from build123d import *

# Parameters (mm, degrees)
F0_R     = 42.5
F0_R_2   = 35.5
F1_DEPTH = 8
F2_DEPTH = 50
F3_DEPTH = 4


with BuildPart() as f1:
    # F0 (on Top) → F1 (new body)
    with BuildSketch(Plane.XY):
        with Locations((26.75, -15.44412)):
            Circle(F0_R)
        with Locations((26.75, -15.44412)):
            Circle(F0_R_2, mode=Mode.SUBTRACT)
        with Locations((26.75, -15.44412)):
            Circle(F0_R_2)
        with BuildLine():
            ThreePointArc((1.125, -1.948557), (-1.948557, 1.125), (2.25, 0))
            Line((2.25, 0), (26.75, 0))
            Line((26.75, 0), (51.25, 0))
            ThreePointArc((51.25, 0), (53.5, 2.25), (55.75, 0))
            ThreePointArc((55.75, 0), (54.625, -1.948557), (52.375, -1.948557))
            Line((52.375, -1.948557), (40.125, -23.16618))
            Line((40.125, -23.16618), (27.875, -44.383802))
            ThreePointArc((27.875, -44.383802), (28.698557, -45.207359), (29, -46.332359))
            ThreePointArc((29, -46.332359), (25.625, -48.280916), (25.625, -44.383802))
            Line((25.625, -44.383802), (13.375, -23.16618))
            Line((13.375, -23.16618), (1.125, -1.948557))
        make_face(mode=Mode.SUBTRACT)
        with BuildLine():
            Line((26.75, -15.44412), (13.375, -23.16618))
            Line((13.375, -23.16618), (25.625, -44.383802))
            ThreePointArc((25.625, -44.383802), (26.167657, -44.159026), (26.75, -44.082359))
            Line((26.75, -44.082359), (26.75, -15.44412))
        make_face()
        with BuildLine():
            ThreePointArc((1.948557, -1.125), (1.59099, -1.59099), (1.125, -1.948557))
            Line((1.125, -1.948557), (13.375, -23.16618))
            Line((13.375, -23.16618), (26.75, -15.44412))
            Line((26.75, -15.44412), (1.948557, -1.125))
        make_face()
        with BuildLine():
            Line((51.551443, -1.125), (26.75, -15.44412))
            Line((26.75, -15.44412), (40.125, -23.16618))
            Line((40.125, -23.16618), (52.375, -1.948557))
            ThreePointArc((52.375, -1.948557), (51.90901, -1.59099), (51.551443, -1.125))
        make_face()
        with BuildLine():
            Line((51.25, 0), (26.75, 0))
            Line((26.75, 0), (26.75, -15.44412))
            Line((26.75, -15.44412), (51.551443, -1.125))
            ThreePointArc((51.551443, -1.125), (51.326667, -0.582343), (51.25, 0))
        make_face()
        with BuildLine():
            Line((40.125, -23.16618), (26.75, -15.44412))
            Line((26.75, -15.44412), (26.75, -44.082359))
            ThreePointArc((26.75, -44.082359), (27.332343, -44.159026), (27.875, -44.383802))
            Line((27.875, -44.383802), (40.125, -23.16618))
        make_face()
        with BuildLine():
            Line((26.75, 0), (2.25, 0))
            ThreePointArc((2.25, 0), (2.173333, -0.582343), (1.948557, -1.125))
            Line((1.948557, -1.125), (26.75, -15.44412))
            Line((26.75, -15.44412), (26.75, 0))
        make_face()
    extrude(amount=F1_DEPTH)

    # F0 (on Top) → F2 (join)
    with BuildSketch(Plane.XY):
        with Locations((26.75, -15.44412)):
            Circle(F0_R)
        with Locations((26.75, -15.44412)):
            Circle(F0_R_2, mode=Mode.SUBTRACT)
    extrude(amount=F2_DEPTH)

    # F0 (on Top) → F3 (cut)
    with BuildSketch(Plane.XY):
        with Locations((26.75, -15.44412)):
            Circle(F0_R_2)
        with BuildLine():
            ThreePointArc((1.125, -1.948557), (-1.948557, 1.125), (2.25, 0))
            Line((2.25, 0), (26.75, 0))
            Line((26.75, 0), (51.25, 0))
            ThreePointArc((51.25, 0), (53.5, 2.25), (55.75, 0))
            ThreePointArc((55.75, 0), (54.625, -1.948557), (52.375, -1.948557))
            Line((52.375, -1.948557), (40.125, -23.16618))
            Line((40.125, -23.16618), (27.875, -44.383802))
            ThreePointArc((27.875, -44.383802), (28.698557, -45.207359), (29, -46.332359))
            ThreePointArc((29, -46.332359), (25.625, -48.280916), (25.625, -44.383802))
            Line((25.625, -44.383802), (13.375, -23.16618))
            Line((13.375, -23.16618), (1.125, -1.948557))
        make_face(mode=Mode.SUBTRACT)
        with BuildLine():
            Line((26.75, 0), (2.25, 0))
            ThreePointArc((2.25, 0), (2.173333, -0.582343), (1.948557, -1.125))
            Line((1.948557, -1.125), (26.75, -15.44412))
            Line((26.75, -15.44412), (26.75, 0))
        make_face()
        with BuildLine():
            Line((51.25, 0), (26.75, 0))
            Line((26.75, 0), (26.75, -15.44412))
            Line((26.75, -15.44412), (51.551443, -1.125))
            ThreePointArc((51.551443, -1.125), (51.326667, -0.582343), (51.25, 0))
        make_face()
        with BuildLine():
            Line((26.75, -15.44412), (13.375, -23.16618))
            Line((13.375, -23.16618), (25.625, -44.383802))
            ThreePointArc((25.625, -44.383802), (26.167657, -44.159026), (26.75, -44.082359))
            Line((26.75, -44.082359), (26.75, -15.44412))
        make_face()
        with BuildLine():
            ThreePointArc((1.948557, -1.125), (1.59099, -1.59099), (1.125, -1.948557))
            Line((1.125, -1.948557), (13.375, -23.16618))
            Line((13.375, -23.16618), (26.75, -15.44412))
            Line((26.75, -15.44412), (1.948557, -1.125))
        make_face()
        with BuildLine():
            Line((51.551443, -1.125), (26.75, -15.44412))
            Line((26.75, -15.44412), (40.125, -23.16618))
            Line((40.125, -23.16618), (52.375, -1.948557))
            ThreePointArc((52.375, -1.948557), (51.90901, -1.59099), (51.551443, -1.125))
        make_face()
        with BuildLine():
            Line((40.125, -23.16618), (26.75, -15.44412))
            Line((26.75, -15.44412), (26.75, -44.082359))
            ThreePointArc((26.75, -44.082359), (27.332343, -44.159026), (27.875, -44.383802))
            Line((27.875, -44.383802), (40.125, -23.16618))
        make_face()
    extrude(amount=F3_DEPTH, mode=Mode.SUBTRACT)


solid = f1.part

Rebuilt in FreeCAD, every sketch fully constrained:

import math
import FreeCAD as App
import Part
import Sketcher

V = App.Vector

doc = App.newDocument("Part")
body = doc.addObject("PartDesign::Body", "Body")

sketch1 = body.newObject("Sketcher::SketchObject", "Sketch")
sketch1.AttachmentSupport = (doc.getObject("XY_Plane"), [""])
sketch1.MapMode = "FlatFace"
sketch1.addGeometry([
    Part.Circle(V(26.8, -15.4, 0), V(0, 0, 1), 42.5),
    Part.ArcOfCircle(Part.Circle(V(26.8, -46.3, 0), V(0, 0, 1), 2.2), math.radians(90), math.radians(120)),
    Part.ArcOfCircle(Part.Circle(V(26.7, -46.3, 0), V(0, 0, 1), 2.2), math.radians(60), math.radians(90)),
    Part.ArcOfCircle(Part.Circle(V(26.7, -46.3, 0), V(0, 0, 1), 2.3), math.radians(0), math.radians(60)),
    Part.ArcOfCircle(Part.Circle(V(26.8, -46.3, 0), V(0, 0, 1), 2.2), math.radians(120), math.radians(360)),
    Part.ArcOfCircle(Part.Circle(V(0, 0, 0), V(0, 0, 1), 2.3), math.radians(-60), math.radians(-30)),
    Part.ArcOfCircle(Part.Circle(V(0, 0, 0), V(0, 0, 1), 2.2), math.radians(0), math.radians(300)),
    Part.ArcOfCircle(Part.Circle(V(0, 0, 0), V(0, 0, 1), 2.2), math.radians(-30), math.radians(0)),
    Part.ArcOfCircle(Part.Circle(V(53.5, 0, 0), V(0, 0, 1), 2.3), math.radians(-150), math.radians(-120)),
    Part.ArcOfCircle(Part.Circle(V(53.5, 0, 0), V(0, 0, 1), 2.2), math.radians(-180), math.radians(-150)),
    Part.ArcOfCircle(Part.Circle(V(53.5, 0, 0), V(0, 0, 1), 2.2), math.radians(0), math.radians(180)),
    Part.ArcOfCircle(Part.Circle(V(53.5, 0, 0), V(0, 0, 1), 2.2), math.radians(-120), math.radians(0)),
], False)
sketch1.addConstraint([
    Sketcher.Constraint("Tangent", 1, 1, 2, 2),
    Sketcher.Constraint("Tangent", 2, 1, 3, 2),
    Sketcher.Constraint("Tangent", 3, 1, 4, 2),
    Sketcher.Constraint("Tangent", 4, 1, 1, 2),
    Sketcher.Constraint("Tangent", 5, 1, 6, 2),
    Sketcher.Constraint("Tangent", 6, 1, 7, 2),
    Sketcher.Constraint("Tangent", 7, 1, 5, 2),
    Sketcher.Constraint("Tangent", 8, 1, 9, 2),
    Sketcher.Constraint("Tangent", 9, 1, 10, 2),
    Sketcher.Constraint("Tangent", 10, 1, 11, 2),
    Sketcher.Constraint("Tangent", 11, 1, 8, 2),
    Sketcher.Constraint("Coincident", 5, 3, -1, 1),
    Sketcher.Constraint("Equal", 1, 2),
    Sketcher.Constraint("Equal", 4, 6),
    Sketcher.Constraint("Equal", 5, 8),
    Sketcher.Constraint("Equal", 7, 9),
    Sketcher.Constraint("PointOnObject", 9, 3, -1),
    Sketcher.Constraint("PointOnObject", 6, 1, -1),
    Sketcher.Constraint("PointOnObject", 9, 1, -1),
    Sketcher.Constraint("PointOnObject", 10, 1, -1),
    Sketcher.Constraint("Horizontal", 4, 3, 3, 1),
    Sketcher.Constraint("Horizontal", 2, 1, 4, 1),
    Sketcher.Constraint("Horizontal", 7, 1, 8, 1),
    Sketcher.Constraint("Horizontal", 5, 1, 11, 1),
    Sketcher.Constraint("Vertical", 0, 3, 1, 3),
    Sketcher.Constraint("Vertical", 4, 3, 1, 1),
    Sketcher.Constraint("Diameter", 0, 85.0),
    Sketcher.Constraint("Radius", 1, 2.25),
    Sketcher.Constraint("DistanceX", -1, 1, 3, 1, 29.0),
    Sketcher.Constraint("DistanceX", -1, 1, 9, 3, 53.5),
    Sketcher.Constraint("DistanceX", 5, 1, 4, 1, 24.5),
    Sketcher.Constraint("DistanceX", -1, 1, 2, 1, 27.875),
    Sketcher.Constraint("DistanceY", 7, 1, -1, 1, 1.125),
    Sketcher.Constraint("DistanceY", 0, 3, -1, 1, 15.44412),
    Sketcher.Constraint("DistanceY", 1, 3, -1, 1, 46.332359),
])
pad1 = body.newObject("PartDesign::Pad", "Pad")
pad1.Profile = sketch1
pad1.Length = 8

sketch2 = body.newObject("Sketcher::SketchObject", "Sketch001")
sketch2.AttachmentSupport = (doc.getObject("XY_Plane"), [""])
sketch2.MapMode = "FlatFace"
sketch2.addGeometry([
    Part.Circle(V(27, -15, 0), V(0, 0, 1), 42),
    Part.Circle(V(27, -15, 0), V(0, 0, 1), 36),
], False)
sketch2.addConstraint([
    Sketcher.Constraint("Coincident", 1, 3, 0, 3),
    Sketcher.Constraint("Diameter", 0, 85.0),
    Sketcher.Constraint("Diameter", 1, 71.0),
    Sketcher.Constraint("DistanceX", -1, 1, 0, 3, 26.75),
    Sketcher.Constraint("DistanceY", 0, 3, -1, 1, 15.44412),
])
pad2 = body.newObject("PartDesign::Pad", "Pad001")
pad2.Profile = sketch2
pad2.Length = 50

sketch3 = body.newObject("Sketcher::SketchObject", "Sketch002")
sketch3.AttachmentSupport = (doc.getObject("XY_Plane"), [""])
sketch3.MapMode = "FlatFace"
sketch3.addGeometry([
    Part.Circle(V(26.8, -15.4, 0), V(0, 0, 1), 35.5),
    Part.ArcOfCircle(Part.Circle(V(26.7, -46.3, 0), V(0, 0, 1), 2.3), math.radians(0), math.radians(60)),
    Part.ArcOfCircle(Part.Circle(V(26.8, -46.3, 0), V(0, 0, 1), 2.2), math.radians(120), math.radians(360)),
    Part.ArcOfCircle(Part.Circle(V(26.8, -46.3, 0), V(0, 0, 1), 2.2), math.radians(90), math.radians(120)),
    Part.ArcOfCircle(Part.Circle(V(26.7, -46.3, 0), V(0, 0, 1), 2.2), math.radians(60), math.radians(90)),
    Part.ArcOfCircle(Part.Circle(V(53.5, 0, 0), V(0, 0, 1), 2.2), math.radians(-180), math.radians(-150)),
    Part.ArcOfCircle(Part.Circle(V(53.5, 0, 0), V(0, 0, 1), 2.2), math.radians(0), math.radians(180)),
    Part.ArcOfCircle(Part.Circle(V(53.5, 0, 0), V(0, 0, 1), 2.2), math.radians(-120), math.radians(0)),
    Part.ArcOfCircle(Part.Circle(V(53.5, 0, 0), V(0, 0, 1), 2.3), math.radians(-150), math.radians(-120)),
    Part.ArcOfCircle(Part.Circle(V(0, 0, 0), V(0, 0, 1), 2.2), math.radians(-30), math.radians(0)),
    Part.ArcOfCircle(Part.Circle(V(0, 0, 0), V(0, 0, 1), 2.3), math.radians(-60), math.radians(-30)),
    Part.ArcOfCircle(Part.Circle(V(0, 0, 0), V(0, 0, 1), 2.2), math.radians(0), math.radians(300)),
], False)
sketch3.addConstraint([
    Sketcher.Constraint("Tangent", 1, 1, 2, 2),
    Sketcher.Constraint("Tangent", 2, 1, 3, 2),
    Sketcher.Constraint("Tangent", 3, 1, 4, 2),
    Sketcher.Constraint("Tangent", 4, 1, 1, 2),
    Sketcher.Constraint("Tangent", 5, 1, 6, 2),
    Sketcher.Constraint("Tangent", 6, 1, 7, 2),
    Sketcher.Constraint("Tangent", 7, 1, 8, 2),
    Sketcher.Constraint("Tangent", 8, 1, 5, 2),
    Sketcher.Constraint("Tangent", 9, 1, 10, 2),
    Sketcher.Constraint("Tangent", 10, 1, 11, 2),
    Sketcher.Constraint("Tangent", 11, 1, 9, 2),
    Sketcher.Constraint("Coincident", 9, 3, -1, 1),
    Sketcher.Constraint("Equal", 1, 2),
    Sketcher.Constraint("Equal", 4, 5),
    Sketcher.Constraint("Equal", 5, 6),
    Sketcher.Constraint("Equal", 7, 9),
    Sketcher.Constraint("PointOnObject", 5, 3, -1),
    Sketcher.Constraint("PointOnObject", 5, 1, -1),
    Sketcher.Constraint("PointOnObject", 6, 1, -1),
    Sketcher.Constraint("PointOnObject", 11, 1, -1),
    Sketcher.Constraint("Horizontal", 4, 3, 1, 1),
    Sketcher.Constraint("Horizontal", 2, 1, 4, 1),
    Sketcher.Constraint("Horizontal", 8, 1, 9, 1),
    Sketcher.Constraint("Horizontal", 7, 1, 10, 1),
    Sketcher.Constraint("Vertical", 0, 3, 1, 3),
    Sketcher.Constraint("Vertical", 4, 3, 3, 1),
    Sketcher.Constraint("Diameter", 0, 71.0),
    Sketcher.Constraint("Radius", 1, 2.25),
    Sketcher.Constraint("DistanceX", -1, 1, 1, 1, 29.0),
    Sketcher.Constraint("DistanceX", -1, 1, 5, 3, 53.5),
    Sketcher.Constraint("DistanceX", -1, 1, 2, 1, 25.625),
    Sketcher.Constraint("DistanceX", -1, 1, 7, 1, 52.375),
    Sketcher.Constraint("DistanceY", 8, 1, -1, 1, 1.125),
    Sketcher.Constraint("DistanceY", 0, 3, -1, 1, 15.44412),
    Sketcher.Constraint("DistanceY", 1, 3, -1, 1, 46.332359),
])
pocket1 = body.newObject("PartDesign::Pocket", "Pocket")
pocket1.Profile = sketch3
pocket1.Length = 4
pocket1.Reversed = True

doc.recompute()
